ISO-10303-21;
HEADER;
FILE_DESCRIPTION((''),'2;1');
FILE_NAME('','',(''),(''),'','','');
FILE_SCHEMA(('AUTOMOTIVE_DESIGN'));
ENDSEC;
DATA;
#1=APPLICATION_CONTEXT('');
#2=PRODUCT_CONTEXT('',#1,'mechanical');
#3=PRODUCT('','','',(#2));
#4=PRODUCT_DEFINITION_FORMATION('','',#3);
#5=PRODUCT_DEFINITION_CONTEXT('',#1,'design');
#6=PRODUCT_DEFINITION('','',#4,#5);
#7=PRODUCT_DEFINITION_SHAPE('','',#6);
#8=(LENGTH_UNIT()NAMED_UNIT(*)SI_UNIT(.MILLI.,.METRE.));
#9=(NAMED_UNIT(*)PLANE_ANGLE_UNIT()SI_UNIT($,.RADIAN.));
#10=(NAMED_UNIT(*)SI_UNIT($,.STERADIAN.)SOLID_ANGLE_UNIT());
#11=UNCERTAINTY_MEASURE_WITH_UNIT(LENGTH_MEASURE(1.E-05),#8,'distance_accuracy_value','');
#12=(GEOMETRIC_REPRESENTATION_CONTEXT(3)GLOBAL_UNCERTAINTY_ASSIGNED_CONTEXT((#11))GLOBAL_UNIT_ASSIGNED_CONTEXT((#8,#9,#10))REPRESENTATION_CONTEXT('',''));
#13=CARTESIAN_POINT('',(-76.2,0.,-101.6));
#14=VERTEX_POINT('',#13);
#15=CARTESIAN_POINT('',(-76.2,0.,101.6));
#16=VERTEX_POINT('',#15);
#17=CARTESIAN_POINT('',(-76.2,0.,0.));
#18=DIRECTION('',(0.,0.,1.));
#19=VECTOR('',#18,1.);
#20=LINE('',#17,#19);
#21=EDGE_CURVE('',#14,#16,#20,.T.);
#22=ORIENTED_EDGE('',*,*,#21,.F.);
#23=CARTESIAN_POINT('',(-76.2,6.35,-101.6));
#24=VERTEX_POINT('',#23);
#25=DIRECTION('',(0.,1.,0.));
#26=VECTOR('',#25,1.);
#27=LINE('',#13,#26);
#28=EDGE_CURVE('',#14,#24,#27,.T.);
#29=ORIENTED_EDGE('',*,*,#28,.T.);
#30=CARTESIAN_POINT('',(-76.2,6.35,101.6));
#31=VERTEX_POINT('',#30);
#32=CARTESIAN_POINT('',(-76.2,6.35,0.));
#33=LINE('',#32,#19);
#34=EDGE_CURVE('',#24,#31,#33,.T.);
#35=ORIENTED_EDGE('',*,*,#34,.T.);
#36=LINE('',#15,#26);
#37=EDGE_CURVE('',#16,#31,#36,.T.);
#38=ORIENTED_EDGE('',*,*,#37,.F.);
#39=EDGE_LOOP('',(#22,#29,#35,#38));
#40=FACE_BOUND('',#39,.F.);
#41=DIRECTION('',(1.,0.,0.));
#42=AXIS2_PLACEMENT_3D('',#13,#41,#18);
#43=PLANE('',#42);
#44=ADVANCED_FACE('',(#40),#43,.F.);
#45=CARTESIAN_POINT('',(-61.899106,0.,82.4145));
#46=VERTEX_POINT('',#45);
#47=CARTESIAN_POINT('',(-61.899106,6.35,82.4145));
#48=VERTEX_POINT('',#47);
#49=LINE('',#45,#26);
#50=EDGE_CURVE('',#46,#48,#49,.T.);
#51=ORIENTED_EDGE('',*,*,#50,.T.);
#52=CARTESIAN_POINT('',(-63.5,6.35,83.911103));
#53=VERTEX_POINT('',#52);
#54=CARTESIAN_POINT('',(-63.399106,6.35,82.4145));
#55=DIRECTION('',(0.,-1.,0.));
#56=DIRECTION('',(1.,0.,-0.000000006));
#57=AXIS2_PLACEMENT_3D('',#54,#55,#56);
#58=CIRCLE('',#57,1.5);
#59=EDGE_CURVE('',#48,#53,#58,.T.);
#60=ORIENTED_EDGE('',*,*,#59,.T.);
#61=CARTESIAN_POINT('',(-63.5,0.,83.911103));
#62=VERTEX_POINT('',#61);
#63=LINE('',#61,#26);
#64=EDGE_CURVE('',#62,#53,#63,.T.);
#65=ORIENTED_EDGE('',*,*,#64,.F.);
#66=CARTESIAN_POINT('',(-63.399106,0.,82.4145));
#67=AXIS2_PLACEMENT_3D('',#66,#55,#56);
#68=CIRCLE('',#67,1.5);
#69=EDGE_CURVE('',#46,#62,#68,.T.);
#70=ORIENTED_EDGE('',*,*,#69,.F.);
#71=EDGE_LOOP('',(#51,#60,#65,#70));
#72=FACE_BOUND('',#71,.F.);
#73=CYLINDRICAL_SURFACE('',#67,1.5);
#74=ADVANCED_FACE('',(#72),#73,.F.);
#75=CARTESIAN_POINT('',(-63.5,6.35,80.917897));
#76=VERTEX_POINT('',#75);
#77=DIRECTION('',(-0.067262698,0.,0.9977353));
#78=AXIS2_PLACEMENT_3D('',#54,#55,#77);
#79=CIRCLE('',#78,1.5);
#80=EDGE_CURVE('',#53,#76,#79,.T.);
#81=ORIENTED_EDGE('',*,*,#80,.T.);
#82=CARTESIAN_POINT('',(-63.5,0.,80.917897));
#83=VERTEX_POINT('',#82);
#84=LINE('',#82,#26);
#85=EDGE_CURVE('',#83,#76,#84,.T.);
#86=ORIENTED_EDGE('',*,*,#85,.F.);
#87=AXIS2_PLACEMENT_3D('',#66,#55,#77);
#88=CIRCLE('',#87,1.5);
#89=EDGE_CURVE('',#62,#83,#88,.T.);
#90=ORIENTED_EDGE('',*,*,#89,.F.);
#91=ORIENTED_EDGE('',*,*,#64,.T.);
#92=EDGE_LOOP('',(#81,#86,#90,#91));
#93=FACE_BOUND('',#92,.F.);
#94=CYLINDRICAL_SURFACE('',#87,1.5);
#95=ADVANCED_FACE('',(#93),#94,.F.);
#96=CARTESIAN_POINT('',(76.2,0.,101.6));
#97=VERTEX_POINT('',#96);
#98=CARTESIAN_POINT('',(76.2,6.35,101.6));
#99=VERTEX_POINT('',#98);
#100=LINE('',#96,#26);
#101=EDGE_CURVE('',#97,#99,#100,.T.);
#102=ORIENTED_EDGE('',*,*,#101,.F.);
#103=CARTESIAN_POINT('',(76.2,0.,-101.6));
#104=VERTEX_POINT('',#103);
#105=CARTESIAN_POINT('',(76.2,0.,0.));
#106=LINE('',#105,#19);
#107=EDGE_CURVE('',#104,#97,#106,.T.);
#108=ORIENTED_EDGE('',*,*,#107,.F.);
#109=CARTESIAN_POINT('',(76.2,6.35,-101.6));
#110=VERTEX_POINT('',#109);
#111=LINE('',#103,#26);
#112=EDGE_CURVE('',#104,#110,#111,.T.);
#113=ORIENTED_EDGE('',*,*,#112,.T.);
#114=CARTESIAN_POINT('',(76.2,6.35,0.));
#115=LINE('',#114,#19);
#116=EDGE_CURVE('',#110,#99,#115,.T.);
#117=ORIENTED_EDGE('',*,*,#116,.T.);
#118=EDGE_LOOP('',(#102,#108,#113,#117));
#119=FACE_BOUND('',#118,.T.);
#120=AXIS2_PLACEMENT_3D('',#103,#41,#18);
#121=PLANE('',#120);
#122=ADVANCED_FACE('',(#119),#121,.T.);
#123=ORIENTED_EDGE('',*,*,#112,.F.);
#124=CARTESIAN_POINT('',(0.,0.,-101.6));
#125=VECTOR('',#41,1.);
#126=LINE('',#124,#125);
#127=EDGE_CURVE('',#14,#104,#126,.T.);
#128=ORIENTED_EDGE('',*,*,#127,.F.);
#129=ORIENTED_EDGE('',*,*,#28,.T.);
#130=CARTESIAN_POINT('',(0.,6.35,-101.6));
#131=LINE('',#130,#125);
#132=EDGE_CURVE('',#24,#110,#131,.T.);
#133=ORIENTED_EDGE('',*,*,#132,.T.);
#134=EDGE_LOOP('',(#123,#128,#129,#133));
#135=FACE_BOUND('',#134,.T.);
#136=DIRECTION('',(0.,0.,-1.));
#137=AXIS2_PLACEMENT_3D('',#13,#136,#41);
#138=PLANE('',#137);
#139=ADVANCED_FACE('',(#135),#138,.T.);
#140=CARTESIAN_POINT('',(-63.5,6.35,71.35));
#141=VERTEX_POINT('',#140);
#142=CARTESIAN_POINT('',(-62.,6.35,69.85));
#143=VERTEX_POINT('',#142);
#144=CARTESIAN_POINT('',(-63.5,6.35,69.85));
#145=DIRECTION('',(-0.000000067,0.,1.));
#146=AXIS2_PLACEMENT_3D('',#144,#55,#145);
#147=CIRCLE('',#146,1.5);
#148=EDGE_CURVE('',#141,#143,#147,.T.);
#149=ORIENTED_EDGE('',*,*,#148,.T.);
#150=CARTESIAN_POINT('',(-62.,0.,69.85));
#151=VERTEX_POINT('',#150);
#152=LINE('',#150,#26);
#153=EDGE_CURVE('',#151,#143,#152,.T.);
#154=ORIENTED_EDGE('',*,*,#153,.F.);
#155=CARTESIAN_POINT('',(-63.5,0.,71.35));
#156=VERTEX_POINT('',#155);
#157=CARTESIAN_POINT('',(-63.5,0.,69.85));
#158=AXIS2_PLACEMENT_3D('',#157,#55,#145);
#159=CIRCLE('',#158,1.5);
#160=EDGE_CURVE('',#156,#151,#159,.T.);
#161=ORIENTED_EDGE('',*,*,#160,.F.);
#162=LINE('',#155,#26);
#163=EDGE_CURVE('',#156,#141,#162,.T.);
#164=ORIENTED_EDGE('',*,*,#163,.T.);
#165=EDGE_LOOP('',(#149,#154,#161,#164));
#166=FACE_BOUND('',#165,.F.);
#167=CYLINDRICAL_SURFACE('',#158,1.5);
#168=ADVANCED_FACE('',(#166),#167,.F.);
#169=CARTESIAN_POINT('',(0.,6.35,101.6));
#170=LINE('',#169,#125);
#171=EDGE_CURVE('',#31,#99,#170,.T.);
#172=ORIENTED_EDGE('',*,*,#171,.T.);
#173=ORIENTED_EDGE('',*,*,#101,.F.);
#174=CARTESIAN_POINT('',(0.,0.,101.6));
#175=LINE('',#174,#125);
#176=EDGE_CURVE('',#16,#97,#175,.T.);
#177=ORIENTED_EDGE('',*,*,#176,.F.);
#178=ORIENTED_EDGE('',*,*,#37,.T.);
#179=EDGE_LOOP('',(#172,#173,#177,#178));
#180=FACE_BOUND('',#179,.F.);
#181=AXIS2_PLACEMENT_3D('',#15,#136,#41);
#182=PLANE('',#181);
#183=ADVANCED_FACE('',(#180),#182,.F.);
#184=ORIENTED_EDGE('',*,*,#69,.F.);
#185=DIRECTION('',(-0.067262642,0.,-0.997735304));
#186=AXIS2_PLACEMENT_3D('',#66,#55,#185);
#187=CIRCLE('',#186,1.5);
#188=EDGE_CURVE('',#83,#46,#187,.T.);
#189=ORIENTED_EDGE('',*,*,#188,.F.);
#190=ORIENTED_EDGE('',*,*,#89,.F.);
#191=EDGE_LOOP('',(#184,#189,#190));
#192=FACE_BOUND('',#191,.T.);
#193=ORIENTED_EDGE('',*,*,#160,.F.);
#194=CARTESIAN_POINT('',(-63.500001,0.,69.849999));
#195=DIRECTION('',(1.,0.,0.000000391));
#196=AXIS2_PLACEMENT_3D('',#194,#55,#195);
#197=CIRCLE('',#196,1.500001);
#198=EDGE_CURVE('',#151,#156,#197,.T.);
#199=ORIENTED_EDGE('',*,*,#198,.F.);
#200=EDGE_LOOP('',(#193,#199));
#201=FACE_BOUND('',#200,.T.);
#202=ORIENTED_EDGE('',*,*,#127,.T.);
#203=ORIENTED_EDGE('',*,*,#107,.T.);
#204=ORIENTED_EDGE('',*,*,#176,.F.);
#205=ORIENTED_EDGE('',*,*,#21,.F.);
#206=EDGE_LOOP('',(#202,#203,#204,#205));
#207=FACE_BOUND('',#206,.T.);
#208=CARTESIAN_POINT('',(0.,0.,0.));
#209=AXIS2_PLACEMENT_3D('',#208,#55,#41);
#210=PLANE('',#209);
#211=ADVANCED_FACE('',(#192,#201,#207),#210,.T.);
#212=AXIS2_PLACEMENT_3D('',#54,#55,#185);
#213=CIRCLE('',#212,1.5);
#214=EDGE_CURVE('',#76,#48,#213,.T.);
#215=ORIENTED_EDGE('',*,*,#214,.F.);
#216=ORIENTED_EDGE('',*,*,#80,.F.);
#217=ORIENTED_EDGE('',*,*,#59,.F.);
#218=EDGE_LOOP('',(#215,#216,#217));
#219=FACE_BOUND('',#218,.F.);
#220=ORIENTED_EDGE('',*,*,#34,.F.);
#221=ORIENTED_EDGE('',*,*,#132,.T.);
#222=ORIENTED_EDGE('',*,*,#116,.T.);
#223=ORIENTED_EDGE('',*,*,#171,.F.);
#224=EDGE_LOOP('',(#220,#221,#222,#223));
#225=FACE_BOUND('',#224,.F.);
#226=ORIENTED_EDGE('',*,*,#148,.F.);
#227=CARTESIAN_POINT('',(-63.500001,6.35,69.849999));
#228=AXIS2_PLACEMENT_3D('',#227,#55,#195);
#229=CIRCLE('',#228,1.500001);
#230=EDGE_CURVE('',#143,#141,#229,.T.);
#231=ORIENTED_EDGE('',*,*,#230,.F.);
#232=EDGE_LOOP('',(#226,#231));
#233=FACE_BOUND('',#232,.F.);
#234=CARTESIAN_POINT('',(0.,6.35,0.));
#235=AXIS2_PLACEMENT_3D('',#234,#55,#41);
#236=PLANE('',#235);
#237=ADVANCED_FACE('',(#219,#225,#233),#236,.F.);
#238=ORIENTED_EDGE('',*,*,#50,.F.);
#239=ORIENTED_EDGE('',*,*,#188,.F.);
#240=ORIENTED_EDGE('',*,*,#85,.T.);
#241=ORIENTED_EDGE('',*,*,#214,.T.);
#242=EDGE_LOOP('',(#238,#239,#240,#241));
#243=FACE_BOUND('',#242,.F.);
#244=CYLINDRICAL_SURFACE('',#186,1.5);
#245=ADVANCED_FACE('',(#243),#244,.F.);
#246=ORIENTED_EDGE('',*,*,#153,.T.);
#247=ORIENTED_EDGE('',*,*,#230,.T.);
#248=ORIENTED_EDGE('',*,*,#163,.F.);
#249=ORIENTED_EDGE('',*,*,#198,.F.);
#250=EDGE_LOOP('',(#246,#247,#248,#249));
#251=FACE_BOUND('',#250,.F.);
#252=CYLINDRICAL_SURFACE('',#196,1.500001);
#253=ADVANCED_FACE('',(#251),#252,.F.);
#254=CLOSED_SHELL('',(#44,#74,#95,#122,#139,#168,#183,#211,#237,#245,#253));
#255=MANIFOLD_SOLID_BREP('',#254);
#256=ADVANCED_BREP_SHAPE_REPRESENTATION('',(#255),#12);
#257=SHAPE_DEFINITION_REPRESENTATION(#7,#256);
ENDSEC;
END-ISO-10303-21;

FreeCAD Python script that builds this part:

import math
import FreeCAD as App
import Part
import Sketcher

V = App.Vector
Q = App.Units.Quantity


def add_polygon(sketch, points):
    """Adds a closed chain of lines whose ends are joined by coincident constraints."""
    first, n = sketch.GeometryCount, len(points)
    for a, b in zip(points, points[1:] + points[:1]):
        sketch.addGeometry(Part.LineSegment(App.Vector(*a, 0), App.Vector(*b, 0)), False)
    for i in range(n):
        sketch.addConstraint(Sketcher.Constraint("Coincident", first + i, 2, first + (i + 1) % n, 1))

doc = App.newDocument("Part")
body = doc.addObject("PartDesign::Body", "Body")

# Sketch on XZ plane
sketch1 = doc.addObject("Sketcher::SketchObject", "Sketch")
body.addObject(sketch1)
sketch1.AttachmentSupport = (doc.XZ_Plane, [""])
sketch1.MapMode = "FlatFace"
add_polygon(sketch1, [(-76.2, 101.6), (-76.2, -101.6), (76.2, -101.6), (76.2, 101.6)])  # lines 0-3
sketch1.addConstraint(Sketcher.Constraint("Vertical", 0))
sketch1.addConstraint(Sketcher.Constraint("Horizontal", 1))
sketch1.addConstraint(Sketcher.Constraint("Vertical", 2))
sketch1.addConstraint(Sketcher.Constraint("Horizontal", 3))
sketch1.addConstraint(Sketcher.Constraint("Symmetric", 0, 2, 2, 2, -1, 1))
sketch1.addConstraint(Sketcher.Constraint("DistanceX", 1, 1, 1, 2, Q("6 in")))
sketch1.addConstraint(Sketcher.Constraint("DistanceY", 0, 2, 0, 1, Q("8 in")))
pad1 = doc.addObject("PartDesign::Pad", "Pad")
body.addObject(pad1)
pad1.Profile = sketch1
pad1.Length = Q("0.25 in")
pad1.Reversed = True

# Sketch on XZ plane
sketch2 = doc.addObject("Sketcher::SketchObject", "Sketch001")
body.addObject(sketch2)
sketch2.AttachmentSupport = (doc.XZ_Plane, [""])
sketch2.MapMode = "FlatFace"
sketch2.addGeometry(Part.ArcOfCircle(Part.Circle(V(-63.399106, 82.4145, 0), V(0, 0, 1), 1.5), math.radians(93.856781), math.radians(266.143219)), False)
sketch2.addGeometry(Part.ArcOfCircle(Part.Circle(V(-63.399106, 82.4145, 0), V(0, 0, 1), 1.5), math.radians(-93.856777), math.radians(0)), False)
sketch2.addGeometry(Part.ArcOfCircle(Part.Circle(V(-63.399106, 82.4145, 0), V(0, 0, 1), 1.5), math.radians(0), math.radians(93.856777)), False)
sketch2.addGeometry(Part.ArcOfCircle(Part.Circle(V(-63.500001, 69.849999, 0), V(0, 0, 1), 1.500001), math.radians(0.000022), math.radians(89.999978)), False)
sketch2.addGeometry(Part.ArcOfCircle(Part.Circle(V(-63.5, 69.85, 0), V(0, 0, 1), 1.5), math.radians(90.000004), math.radians(359.999996)), False)
sketch2.addConstraint(Sketcher.Constraint("Tangent", 0, 2, 1, 1))
sketch2.addConstraint(Sketcher.Constraint("Tangent", 1, 2, 2, 1))
sketch2.addConstraint(Sketcher.Constraint("Tangent", 2, 2, 0, 1))
sketch2.addConstraint(Sketcher.Constraint("Tangent", 3, 1, 4, 2))
sketch2.addConstraint(Sketcher.Constraint("Coincident", 4, 1, 3, 2))
sketch2.addConstraint(Sketcher.Constraint("Equal", 2, 3))
sketch2.addConstraint(Sketcher.Constraint("Horizontal", 2, 3, 1, 2))
sketch2.addConstraint(Sketcher.Constraint("Horizontal", 4, 3, 3, 1))
sketch2.addConstraint(Sketcher.Constraint("Vertical", 4, 3, 0, 2))
sketch2.addConstraint(Sketcher.Constraint("Vertical", 0, 2, 2, 2))
sketch2.addConstraint(Sketcher.Constraint("Vertical", 2, 2, 4, 1))
sketch2.addConstraint(Sketcher.Constraint("DistanceX", 3, 3, -1, 1, Q("2.5 in")))
sketch2.addConstraint(Sketcher.Constraint("DistanceY", -1, 1, 3, 3, Q("2.75 in")))
sketch2.addConstraint(Sketcher.Constraint("Radius", 0, Q("1.5 mm")))
sketch2.addConstraint(Sketcher.Constraint("DistanceY", -1, 1, 0, 3, Q("82.4145 mm")))
sketch2.addConstraint(Sketcher.Constraint("DistanceX", 0, 3, -1, 1, Q("63.399106 mm")))
pocket1 = doc.addObject("PartDesign::Pocket", "Pocket")
body.addObject(pocket1)
pocket1.Profile = sketch2
pocket1.Length = Q("0.5 in")

doc.recompute()
